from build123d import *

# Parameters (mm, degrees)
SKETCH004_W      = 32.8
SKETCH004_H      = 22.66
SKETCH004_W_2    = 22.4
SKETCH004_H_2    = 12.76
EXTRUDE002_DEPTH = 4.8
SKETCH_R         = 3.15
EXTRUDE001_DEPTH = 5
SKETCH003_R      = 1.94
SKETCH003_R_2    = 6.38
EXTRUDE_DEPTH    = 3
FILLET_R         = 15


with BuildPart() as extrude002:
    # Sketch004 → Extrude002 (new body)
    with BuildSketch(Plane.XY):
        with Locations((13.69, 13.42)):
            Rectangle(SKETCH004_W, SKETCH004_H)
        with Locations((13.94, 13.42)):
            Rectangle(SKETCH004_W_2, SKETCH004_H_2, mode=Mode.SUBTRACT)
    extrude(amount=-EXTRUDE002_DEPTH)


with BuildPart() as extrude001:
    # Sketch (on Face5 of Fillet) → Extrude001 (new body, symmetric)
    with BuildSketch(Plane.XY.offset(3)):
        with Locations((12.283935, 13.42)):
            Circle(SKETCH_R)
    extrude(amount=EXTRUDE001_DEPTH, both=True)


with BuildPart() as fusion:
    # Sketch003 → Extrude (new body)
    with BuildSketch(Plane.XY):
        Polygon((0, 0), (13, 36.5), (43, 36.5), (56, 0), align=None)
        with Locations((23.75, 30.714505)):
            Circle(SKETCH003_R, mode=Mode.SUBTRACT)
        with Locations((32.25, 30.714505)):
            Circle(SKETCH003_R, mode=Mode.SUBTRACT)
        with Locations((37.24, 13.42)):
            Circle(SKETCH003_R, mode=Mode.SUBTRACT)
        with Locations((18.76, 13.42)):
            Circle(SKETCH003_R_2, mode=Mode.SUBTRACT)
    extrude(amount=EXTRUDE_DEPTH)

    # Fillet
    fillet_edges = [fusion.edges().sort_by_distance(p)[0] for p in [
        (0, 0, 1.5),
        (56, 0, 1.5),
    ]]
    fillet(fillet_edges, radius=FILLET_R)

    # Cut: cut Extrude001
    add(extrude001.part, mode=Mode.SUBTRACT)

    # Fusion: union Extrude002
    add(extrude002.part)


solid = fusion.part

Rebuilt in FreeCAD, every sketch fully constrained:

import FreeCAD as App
import Part
import Sketcher
Q = App.Units.Quantity


def edges_at(feature, points):
    """Names of the edges that pass closest to the given points."""
    edges = feature.Shape.Edges
    near = lambda p: min(range(len(edges)), key=lambda i: edges[i].distToShape(Part.Vertex(*p))[0])
    return sorted({f"Edge{near(p) + 1}" for p in points})

doc = App.newDocument("Part")
body = doc.addObject("PartDesign::Body", "Body")

sketch1 = doc.addObject("Sketcher::SketchObject", "Sketch")
body.addObject(sketch1)
sketch1.AttachmentSupport = (doc.XY_Plane, [""])
sketch1.MapMode = "FlatFace"
sketch1.addGeometry([
    Part.LineSegment(App.Vector(-3, 25, 0), App.Vector(-3, 2, 0)),
    Part.LineSegment(App.Vector(-3, 2, 0), App.Vector(30, 2, 0)),
    Part.LineSegment(App.Vector(30, 2, 0), App.Vector(30, 25, 0)),
    Part.LineSegment(App.Vector(30, 25, 0), App.Vector(-3, 25, 0)),
    Part.LineSegment(App.Vector(25, 7, 0), App.Vector(3, 7, 0)),
    Part.LineSegment(App.Vector(3, 7, 0), App.Vector(3, 20, 0)),
    Part.LineSegment(App.Vector(3, 20, 0), App.Vector(25, 20, 0)),
    Part.LineSegment(App.Vector(25, 20, 0), App.Vector(25, 7, 0)),
], False)
sketch1.addConstraint([
    Sketcher.Constraint("Coincident", 0, 2, 1, 1),
    Sketcher.Constraint("Coincident", 1, 2, 2, 1),
    Sketcher.Constraint("Coincident", 2, 2, 3, 1),
    Sketcher.Constraint("Coincident", 3, 2, 0, 1),
    Sketcher.Constraint("Coincident", 4, 2, 5, 1),
    Sketcher.Constraint("Coincident", 5, 2, 6, 1),
    Sketcher.Constraint("Coincident", 6, 2, 7, 1),
    Sketcher.Constraint("Coincident", 7, 2, 4, 1),
    Sketcher.Constraint("Vertical", 0),
    Sketcher.Constraint("Horizontal", 1),
    Sketcher.Constraint("Vertical", 2),
    Sketcher.Constraint("Horizontal", 3),
    Sketcher.Constraint("Horizontal", 4),
    Sketcher.Constraint("Vertical", 5),
    Sketcher.Constraint("Horizontal", 6),
    Sketcher.Constraint("Vertical", 7),
    Sketcher.Constraint("DistanceX", 1, 1, 1, 2, Q("32.8 mm")),
    Sketcher.Constraint("DistanceX", 4, 2, 4, 1, Q("22.4 mm")),
    Sketcher.Constraint("DistanceY", 0, 2, 0, 1, Q("22.66 mm")),
    Sketcher.Constraint("DistanceY", 5, 1, 5, 2, Q("12.76 mm")),
    Sketcher.Constraint("DistanceY", -1, 1, 5, 2, Q("19.8 mm")),
    Sketcher.Constraint("DistanceX", 0, 2, -1, 1, Q("2.71 mm")),
    Sketcher.Constraint("DistanceY", -1, 1, 0, 2, Q("2.09 mm")),
    Sketcher.Constraint("DistanceX", -1, 1, 4, 2, Q("2.74 mm")),
])
pad1 = doc.addObject("PartDesign::Pad", "Pad")
body.addObject(pad1)
pad1.Profile = sketch1
pad1.Length = 4.8
pad1.Reversed = True
body2 = doc.addObject("PartDesign::Body", "Body001")

sketch2 = doc.addObject("Sketcher::SketchObject", "Sketch001")
body2.addObject(sketch2)
sketch2.AttachmentSupport = (doc.getObject("XY_Plane001"), [""])
sketch2.MapMode = "FlatFace"
sketch2.AttachmentOffset = App.Placement(App.Vector(0, 0, 3), App.Rotation())
sketch2.addGeometry(Part.Circle(App.Vector(12.3, 13.4, 0), App.Vector(0, 0, 1), 3.1), False)
sketch2.addConstraint([
    Sketcher.Constraint("Diameter", 0, Q("6.3 mm")),
    Sketcher.Constraint("DistanceY", -1, 1, 0, 3, Q("13.42 mm")),
    Sketcher.Constraint("DistanceX", -1, 1, 0, 3, Q("12.283935 mm")),
])
pad2 = doc.addObject("PartDesign::Pad", "Pad001")
body2.addObject(pad2)
pad2.Profile = sketch2
pad2.Length = 10
pad2.Midplane = True
body3 = doc.addObject("PartDesign::Body", "Body002")

sketch3 = doc.addObject("Sketcher::SketchObject", "Sketch002")
body3.addObject(sketch3)
sketch3.AttachmentSupport = (doc.getObject("XY_Plane002"), [""])
sketch3.MapMode = "FlatFace"
sketch3.addGeometry([
    Part.LineSegment(App.Vector(13, 36.5, 0), App.Vector(0, 0, 0)),
    Part.LineSegment(App.Vector(0, 0, 0), App.Vector(56, 0, 0)),
    Part.LineSegment(App.Vector(56, 0, 0), App.Vector(43, 36.5, 0)),
    Part.LineSegment(App.Vector(43, 36.5, 0), App.Vector(13, 36.5, 0)),
    Part.Circle(App.Vector(37.2, 13.4, 0), App.Vector(0, 0, 1), 1.9),
    Part.Circle(App.Vector(18.8, 13.4, 0), App.Vector(0, 0, 1), 6.4),
    Part.Circle(App.Vector(32.2, 30.7, 0), App.Vector(0, 0, 1), 1.9),
    Part.Circle(App.Vector(23.8, 30.7, 0), App.Vector(0, 0, 1), 1.9),
], False)
sketch3.addConstraint([
    Sketcher.Constraint("Coincident", 0, 2, 1, 1),
    Sketcher.Constraint("Coincident", 1, 2, 2, 1),
    Sketcher.Constraint("Coincident", 2, 2, 3, 1),
    Sketcher.Constraint("Coincident", 3, 2, 0, 1),
    Sketcher.Constraint("Horizontal", 1),
    Sketcher.Constraint("Horizontal", 3),
    Sketcher.Constraint("Coincident", 0, 2, -1, 1),
    Sketcher.Constraint("Equal", 4, 6),
    Sketcher.Constraint("Equal", 6, 7),
    Sketcher.Constraint("Horizontal", 4, 3, 5, 3),
    Sketcher.Constraint("Horizontal", 6, 3, 7, 3),
    Sketcher.Constraint("Equal", 0, 2),
    Sketcher.Constraint("Diameter", 4, Q("3.88 mm")),
    Sketcher.Constraint("Diameter", 5, Q("12.76 mm")),
    Sketcher.Constraint("DistanceX", 1, 1, 1, 2, Q("56 mm")),
    Sketcher.Constraint("DistanceX", 3, 2, 3, 1, Q("30 mm")),
    Sketcher.Constraint("DistanceY", -1, 1, 2, 2, Q("36.5 mm")),
    Sketcher.Constraint("DistanceX", 7, 3, 6, 3, Q("8.5 mm")),
    Sketcher.Constraint("DistanceX", -1, 1, 4, 3, Q("37.24 mm")),
    Sketcher.Constraint("DistanceY", -1, 1, 4, 3, Q("13.42 mm")),
    Sketcher.Constraint("DistanceX", -1, 1, 5, 3, Q("18.76 mm")),
    Sketcher.Constraint("DistanceX", -1, 1, 6, 3, Q("32.25 mm")),
    Sketcher.Constraint("DistanceY", -1, 1, 6, 3, Q("30.714505 mm")),
])
pad3 = doc.addObject("PartDesign::Pad", "Pad002")
body3.addObject(pad3)
pad3.Profile = sketch3
pad3.Length = 3
doc.recompute()

fillet = doc.addObject("PartDesign::Fillet", "Fillet")
body3.addObject(fillet)
fillet.Base = (pad3, edges_at(pad3, [(0, 0, 1.5), (56, 0, 1.5)]))
fillet.Radius = 15
doc.recompute()

boolean = doc.addObject("PartDesign::Boolean", "Boolean")
body3.addObject(boolean)
boolean.Type = "Cut"
boolean.addObjects([body2])
doc.recompute()

boolean2 = doc.addObject("PartDesign::Boolean", "Boolean001")
body3.addObject(boolean2)
boolean2.Type = "Fuse"
boolean2.addObjects([body])

doc.recompute()
